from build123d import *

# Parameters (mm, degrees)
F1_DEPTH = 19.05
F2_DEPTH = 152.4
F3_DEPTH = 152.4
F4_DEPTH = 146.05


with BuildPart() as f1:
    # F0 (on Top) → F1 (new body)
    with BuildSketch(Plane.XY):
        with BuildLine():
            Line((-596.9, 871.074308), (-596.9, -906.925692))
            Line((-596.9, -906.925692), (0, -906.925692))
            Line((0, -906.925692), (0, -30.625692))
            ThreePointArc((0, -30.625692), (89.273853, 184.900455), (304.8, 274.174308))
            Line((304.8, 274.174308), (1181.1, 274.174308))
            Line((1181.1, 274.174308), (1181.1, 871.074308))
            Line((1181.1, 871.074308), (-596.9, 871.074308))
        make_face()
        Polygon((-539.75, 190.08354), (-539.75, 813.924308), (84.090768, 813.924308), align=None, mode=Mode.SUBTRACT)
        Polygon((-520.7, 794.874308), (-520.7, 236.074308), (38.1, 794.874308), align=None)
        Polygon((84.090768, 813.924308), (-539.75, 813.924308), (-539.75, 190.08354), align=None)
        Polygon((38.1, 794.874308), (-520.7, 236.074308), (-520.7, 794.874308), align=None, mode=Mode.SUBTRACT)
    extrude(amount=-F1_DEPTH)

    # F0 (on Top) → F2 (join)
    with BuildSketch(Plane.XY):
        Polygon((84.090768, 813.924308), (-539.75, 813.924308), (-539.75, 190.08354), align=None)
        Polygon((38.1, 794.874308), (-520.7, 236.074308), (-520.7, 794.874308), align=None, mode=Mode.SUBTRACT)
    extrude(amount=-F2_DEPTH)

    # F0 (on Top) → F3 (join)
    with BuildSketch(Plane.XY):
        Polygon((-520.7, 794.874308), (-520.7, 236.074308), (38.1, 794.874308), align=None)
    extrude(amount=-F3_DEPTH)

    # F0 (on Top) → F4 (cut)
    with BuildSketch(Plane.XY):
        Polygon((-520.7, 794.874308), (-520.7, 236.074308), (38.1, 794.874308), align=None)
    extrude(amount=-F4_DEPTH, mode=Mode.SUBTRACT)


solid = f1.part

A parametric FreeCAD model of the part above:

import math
import FreeCAD as App
import Part
import Sketcher
Q = App.Units.Quantity

doc = App.newDocument("Part")
body = doc.addObject("PartDesign::Body", "Body")

# Sketch on XY plane
sketch1 = body.newObject("Sketcher::SketchObject", "Sketch")
sketch1.AttachmentSupport = (doc.getObject("XY_Plane"), [""])
sketch1.MapMode = "FlatFace"
sketch1.addGeometry([
    Part.LineSegment(App.Vector(-597, 871, 0), App.Vector(-597, -907, 0)),  # 0
    Part.LineSegment(App.Vector(-597, -907, 0), App.Vector(0, -907, 0)),  # 1
    Part.LineSegment(App.Vector(0, -907, 0), App.Vector(0, -31, 0)),  # 2
    Part.ArcOfCircle(Part.Circle(App.Vector(305, -31, 0), App.Vector(0, 0, 1), 305), math.radians(90), math.radians(180)),  # 3
    Part.LineSegment(App.Vector(305, 274, 0), App.Vector(1181, 274, 0)),  # 4
    Part.LineSegment(App.Vector(1181, 274, 0), App.Vector(1181, 871, 0)),  # 5
    Part.LineSegment(App.Vector(1181, 871, 0), App.Vector(-597, 871, 0)),  # 6
    Part.LineSegment(App.Vector(-521, 795, 0), App.Vector(38, 795, 0)),  # 7
    Part.LineSegment(App.Vector(38, 795, 0), App.Vector(-521, 236, 0)),  # 8
    Part.LineSegment(App.Vector(-521, 236, 0), App.Vector(-521, 795, 0)),  # 9
], False)
sketch1.addConstraint([
    Sketcher.Constraint("Coincident", 0, 2, 1, 1),
    Sketcher.Constraint("Coincident", 1, 2, 2, 1),
    Sketcher.Constraint("Tangent", 2, 2, 3, 2),
    Sketcher.Constraint("Tangent", 3, 1, 4, 1),
    Sketcher.Constraint("Coincident", 4, 2, 5, 1),
    Sketcher.Constraint("Coincident", 5, 2, 6, 1),
    Sketcher.Constraint("Coincident", 6, 2, 0, 1),
    Sketcher.Constraint("Coincident", 7, 2, 8, 1),
    Sketcher.Constraint("Coincident", 8, 2, 9, 1),
    Sketcher.Constraint("Coincident", 9, 2, 7, 1),
    Sketcher.Constraint("Vertical", 0),
    Sketcher.Constraint("Horizontal", 1),
    Sketcher.Constraint("Vertical", 2),
    Sketcher.Constraint("Horizontal", 4),
    Sketcher.Constraint("Vertical", 5),
    Sketcher.Constraint("Horizontal", 6),
    Sketcher.Constraint("Horizontal", 7),
    Sketcher.Constraint("Vertical", 9),
    Sketcher.Constraint("PointOnObject", 1, 2, -2),
    Sketcher.Constraint("Equal", 6, 0),
    Sketcher.Constraint("Equal", 4, 2),
    Sketcher.Constraint("Equal", 7, 9),
    Sketcher.Constraint("Radius", 3, Q("12 in")),
    Sketcher.Constraint("DistanceX", 6, 2, 6, 1, Q("70 in")),
    Sketcher.Constraint("DistanceX", 7, 1, 7, 2, Q("22 in")),
    Sketcher.Constraint("DistanceX", 1, 1, 1, 2, Q("23.5 in")),
    Sketcher.Constraint("DistanceX", 6, 2, 7, 2, Q("25 in")),
    Sketcher.Constraint("DistanceY", 7, 2, 6, 2, Q("3 in")),
    Sketcher.Constraint("DistanceY", 3, 3, -1, 1, 30.625692),
])
pad1 = body.newObject("PartDesign::Pad", "Pad")
pad1.Profile = sketch1
pad1.Length = Q("0.75 in")
pad1.Reversed = True

# Sketch on XY plane
sketch2 = body.newObject("Sketcher::SketchObject", "Sketch001")
sketch2.AttachmentSupport = (doc.getObject("XY_Plane"), [""])
sketch2.MapMode = "FlatFace"
sketch2.addGeometry([
    Part.LineSegment(App.Vector(84, 814, 0), App.Vector(-540, 814, 0)),  # 0
    Part.LineSegment(App.Vector(-540, 814, 0), App.Vector(-540, 190, 0)),  # 1
    Part.LineSegment(App.Vector(-540, 190, 0), App.Vector(84, 814, 0)),  # 2
    Part.LineSegment(App.Vector(-521, 795, 0), App.Vector(38, 795, 0)),  # 3
    Part.LineSegment(App.Vector(38, 795, 0), App.Vector(-521, 236, 0)),  # 4
    Part.LineSegment(App.Vector(-521, 236, 0), App.Vector(-521, 795, 0)),  # 5
], False)
sketch2.addConstraint([
    Sketcher.Constraint("Coincident", 0, 2, 1, 1),
    Sketcher.Constraint("Coincident", 1, 2, 2, 1),
    Sketcher.Constraint("Coincident", 2, 2, 0, 1),
    Sketcher.Constraint("Coincident", 3, 2, 4, 1),
    Sketcher.Constraint("Coincident", 4, 2, 5, 1),
    Sketcher.Constraint("Coincident", 5, 2, 3, 1),
    Sketcher.Constraint("Horizontal", 0),
    Sketcher.Constraint("Vertical", 1),
    Sketcher.Constraint("Horizontal", 3),
    Sketcher.Constraint("Vertical", 5),
    Sketcher.Constraint("Parallel", 2, 4),
    Sketcher.Constraint("Equal", 0, 1),
    Sketcher.Constraint("DistanceX", 3, 1, 3, 2, Q("22 in")),
    Sketcher.Constraint("DistanceX", -1, 1, 3, 2, Q("1.5 in")),
    Sketcher.Constraint("DistanceX", 0, 2, -1, 1, Q("21.25 in")),
    Sketcher.Constraint("DistanceY", 3, 2, 2, 2, Q("0.75 in")),
    Sketcher.Constraint("DistanceX", 0, 2, 0, 1, 623.840768),
    Sketcher.Constraint("DistanceY", -1, 1, 0, 2, 813.924308),
])
pad2 = body.newObject("PartDesign::Pad", "Pad001")
pad2.Profile = sketch2
pad2.Length = Q("6 in")
pad2.Reversed = True

# Sketch on XY plane
sketch3 = body.newObject("Sketcher::SketchObject", "Sketch002")
sketch3.AttachmentSupport = (doc.getObject("XY_Plane"), [""])
sketch3.MapMode = "FlatFace"
sketch3.addGeometry([
    Part.LineSegment(App.Vector(-521, 795, 0), App.Vector(-521, 236, 0)),
    Part.LineSegment(App.Vector(-521, 236, 0), App.Vector(38, 795, 0)),
    Part.LineSegment(App.Vector(38, 795, 0), App.Vector(-521, 795, 0)),
], False)
sketch3.addConstraint([
    Sketcher.Constraint("Coincident", 0, 2, 1, 1),
    Sketcher.Constraint("Coincident", 1, 2, 2, 1),
    Sketcher.Constraint("Coincident", 2, 2, 0, 1),
    Sketcher.Constraint("Vertical", 0),
    Sketcher.Constraint("Horizontal", 2),
    Sketcher.Constraint("Equal", 2, 0),
    Sketcher.Constraint("DistanceX", 2, 2, 2, 1, Q("22 in")),
    Sketcher.Constraint("DistanceX", 0, 2, -1, 1, Q("20.5 in")),
    Sketcher.Constraint("DistanceY", -1, 1, 0, 2, 236.074308),
])
pad3 = body.newObject("PartDesign::Pad", "Pad002")
pad3.Profile = sketch3
pad3.Length = Q("6 in")
pad3.Reversed = True

# Sketch on XY plane
sketch4 = body.newObject("Sketcher::SketchObject", "Sketch003")
sketch4.AttachmentSupport = (doc.getObject("XY_Plane"), [""])
sketch4.MapMode = "FlatFace"
sketch4.addGeometry([
    Part.LineSegment(App.Vector(-521, 795, 0), App.Vector(-521, 236, 0)),
    Part.LineSegment(App.Vector(-521, 236, 0), App.Vector(38, 795, 0)),
    Part.LineSegment(App.Vector(38, 795, 0), App.Vector(-521, 795, 0)),
], False)
sketch4.addConstraint([
    Sketcher.Constraint("Coincident", 0, 2, 1, 1),
    Sketcher.Constraint("Coincident", 1, 2, 2, 1),
    Sketcher.Constraint("Coincident", 2, 2, 0, 1),
    Sketcher.Constraint("Vertical", 0),
    Sketcher.Constraint("Horizontal", 2),
    Sketcher.Constraint("Equal", 2, 0),
    Sketcher.Constraint("DistanceX", 2, 2, 2, 1, Q("22 in")),
    Sketcher.Constraint("DistanceX", 0, 2, -1, 1, Q("20.5 in")),
    Sketcher.Constraint("DistanceY", -1, 1, 0, 2, 236.074308),
])
pocket1 = body.newObject("PartDesign::Pocket", "Pocket")
pocket1.Profile = sketch4
pocket1.Length = Q("5.75 in")

doc.recompute()
